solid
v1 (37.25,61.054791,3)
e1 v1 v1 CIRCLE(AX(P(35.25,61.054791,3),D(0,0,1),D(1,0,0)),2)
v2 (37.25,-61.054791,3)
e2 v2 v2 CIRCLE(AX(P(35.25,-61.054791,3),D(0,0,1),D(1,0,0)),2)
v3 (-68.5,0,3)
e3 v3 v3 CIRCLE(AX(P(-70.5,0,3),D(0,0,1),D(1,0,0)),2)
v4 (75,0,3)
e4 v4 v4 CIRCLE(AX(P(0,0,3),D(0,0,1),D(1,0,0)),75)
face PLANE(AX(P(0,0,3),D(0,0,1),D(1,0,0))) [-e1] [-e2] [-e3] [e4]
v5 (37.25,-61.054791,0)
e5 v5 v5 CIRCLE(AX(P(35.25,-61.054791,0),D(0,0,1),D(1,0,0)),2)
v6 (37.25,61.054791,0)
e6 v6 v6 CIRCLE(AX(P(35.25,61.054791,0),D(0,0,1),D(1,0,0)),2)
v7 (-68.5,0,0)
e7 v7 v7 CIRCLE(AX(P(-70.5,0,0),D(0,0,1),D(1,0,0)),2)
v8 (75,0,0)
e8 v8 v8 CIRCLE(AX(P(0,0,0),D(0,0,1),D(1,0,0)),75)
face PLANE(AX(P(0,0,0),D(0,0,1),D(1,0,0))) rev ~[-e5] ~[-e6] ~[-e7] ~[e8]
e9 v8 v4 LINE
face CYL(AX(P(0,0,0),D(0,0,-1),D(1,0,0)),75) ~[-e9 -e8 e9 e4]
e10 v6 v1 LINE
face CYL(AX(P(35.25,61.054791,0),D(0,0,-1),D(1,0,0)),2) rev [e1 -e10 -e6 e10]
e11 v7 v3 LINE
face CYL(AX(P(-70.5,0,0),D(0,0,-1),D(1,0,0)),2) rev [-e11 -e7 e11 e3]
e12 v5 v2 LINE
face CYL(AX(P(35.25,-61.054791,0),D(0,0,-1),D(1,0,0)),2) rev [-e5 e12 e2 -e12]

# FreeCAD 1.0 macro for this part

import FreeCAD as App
import Part
import Sketcher
Q = App.Units.Quantity

doc = App.newDocument("Part")
body = doc.addObject("PartDesign::Body", "Body")

# Sketch on XY plane
sketch1 = body.newObject("Sketcher::SketchObject", "Sketch")
sketch1.AttachmentSupport = (doc.getObject("XY_Plane"), [""])
sketch1.MapMode = "FlatFace"
sketch1.addGeometry([
    Part.Circle(App.Vector(0, 0, 0), App.Vector(0, 0, 1), 75),
    Part.Circle(App.Vector(35.2, -61.1, 0), App.Vector(0, 0, 1), 2),
    Part.Circle(App.Vector(-70.5, 0, 0), App.Vector(0, 0, 1), 2),
    Part.Circle(App.Vector(35.2, 61.1, 0), App.Vector(0, 0, 1), 2),
], False)
sketch1.addConstraint([
    Sketcher.Constraint("Coincident", 0, 3, -1, 1),
    Sketcher.Constraint("Equal", 1, 2),
    Sketcher.Constraint("Equal", 2, 3),
    Sketcher.Constraint("Symmetric", 1, 3, 3, 3, -1),
    Sketcher.Constraint("PointOnObject", 2, 3, -1),
    Sketcher.Constraint("Diameter", 0, Q("150 mm")),
    Sketcher.Constraint("Diameter", 1, Q("4 mm")),
    Sketcher.Constraint("DistanceX", 2, 3, -1, 1, Q("70.5 mm")),
    Sketcher.Constraint("DistanceX", -1, 1, 1, 3, Q("35.25 mm")),
    Sketcher.Constraint("DistanceY", 1, 3, -1, 1, Q("61.054791 mm")),
])
pad1 = body.newObject("PartDesign::Pad", "Pad")
pad1.Profile = sketch1
pad1.Length = 3

doc.recompute()
